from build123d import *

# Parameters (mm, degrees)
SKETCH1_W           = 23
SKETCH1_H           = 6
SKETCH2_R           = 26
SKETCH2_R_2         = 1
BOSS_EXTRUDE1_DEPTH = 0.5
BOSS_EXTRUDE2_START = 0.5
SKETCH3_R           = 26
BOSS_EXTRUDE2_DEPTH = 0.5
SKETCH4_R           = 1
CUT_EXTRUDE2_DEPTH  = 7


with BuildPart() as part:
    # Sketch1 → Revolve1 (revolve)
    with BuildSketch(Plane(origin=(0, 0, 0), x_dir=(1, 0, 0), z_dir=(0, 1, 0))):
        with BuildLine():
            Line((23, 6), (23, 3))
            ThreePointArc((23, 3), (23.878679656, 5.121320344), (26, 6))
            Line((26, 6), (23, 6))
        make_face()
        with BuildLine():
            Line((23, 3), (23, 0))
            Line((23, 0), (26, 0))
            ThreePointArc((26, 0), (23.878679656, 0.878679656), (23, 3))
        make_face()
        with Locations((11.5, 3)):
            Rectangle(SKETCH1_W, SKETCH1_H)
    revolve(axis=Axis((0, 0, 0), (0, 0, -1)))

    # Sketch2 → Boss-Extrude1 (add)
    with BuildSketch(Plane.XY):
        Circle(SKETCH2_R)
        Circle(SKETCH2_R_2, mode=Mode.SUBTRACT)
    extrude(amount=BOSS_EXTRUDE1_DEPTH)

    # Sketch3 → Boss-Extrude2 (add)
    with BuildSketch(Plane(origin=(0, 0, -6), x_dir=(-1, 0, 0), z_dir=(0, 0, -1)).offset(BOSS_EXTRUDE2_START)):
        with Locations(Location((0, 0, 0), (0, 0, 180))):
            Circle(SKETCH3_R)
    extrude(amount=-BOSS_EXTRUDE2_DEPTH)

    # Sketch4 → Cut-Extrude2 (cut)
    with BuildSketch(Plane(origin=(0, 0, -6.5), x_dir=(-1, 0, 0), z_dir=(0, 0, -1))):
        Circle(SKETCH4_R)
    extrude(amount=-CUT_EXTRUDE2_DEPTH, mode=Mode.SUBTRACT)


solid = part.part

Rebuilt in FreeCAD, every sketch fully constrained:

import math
import FreeCAD as App
import Part
import Sketcher

V = App.Vector
Q = App.Units.Quantity

doc = App.newDocument("Part")
params = doc.addObject("Spreadsheet::Sheet", "Params")
for row, (alias, value) in enumerate([
    ("sketch1_radius", "3 mm"),
    ("sketch1_width", "26 mm"),
    ("revolution_angle", "360 deg"),
    ("sketch2_diameter", "52 mm"),
    ("sketch2_diameter2", "2 mm"),
    ("pad1_length", "0.5 mm"),
    ("sketch3_diameter", "52 mm"),
    ("pad2_length", "0.5 mm"),
    ("sketch4_diameter", "2 mm"),
    ("pocket1_length", "7 mm"),
], start=1):
    params.set(f"A{row}", alias)
    params.set(f"B{row}", "=" + value)
    params.setAlias(f"B{row}", alias)

body = doc.addObject("PartDesign::Body", "Body")

# Sketch on XZ plane
sketch1 = doc.addObject("Sketcher::SketchObject", "Sketch")
body.addObject(sketch1)
sketch1.AttachmentSupport = (doc.XZ_Plane, [""])
sketch1.MapMode = "FlatFace"
sketch1.addGeometry(Part.ArcOfCircle(Part.Circle(V(26, -3, 0), V(0, 0, 1), 3), math.radians(180), math.radians(270)), False)
sketch1.addGeometry(Part.LineSegment(V(26, -6, 0), V(0, -6, 0)), False)
sketch1.addGeometry(Part.LineSegment(V(0, -6, 0), V(0, 0, 0)), False)
sketch1.addGeometry(Part.LineSegment(V(0, 0, 0), V(26, 0, 0)), False)
sketch1.addGeometry(Part.ArcOfCircle(Part.Circle(V(26, -3, 0), V(0, 0, 1), 3), math.radians(90), math.radians(180)), False)
sketch1.addConstraint(Sketcher.Constraint("Tangent", 0, 2, 1, 1))
sketch1.addConstraint(Sketcher.Constraint("Coincident", 1, 2, 2, 1))
sketch1.addConstraint(Sketcher.Constraint("Coincident", 2, 2, 3, 1))
sketch1.addConstraint(Sketcher.Constraint("Tangent", 3, 2, 4, 1))
sketch1.addConstraint(Sketcher.Constraint("Tangent", 4, 2, 0, 1))
sketch1.addConstraint(Sketcher.Constraint("Horizontal", 1))
sketch1.addConstraint(Sketcher.Constraint("Vertical", 2))
sketch1.addConstraint(Sketcher.Constraint("Horizontal", 3))
sketch1.addConstraint(Sketcher.Constraint("Coincident", 2, 2, -1, 1))
sketch1.addConstraint(Sketcher.Constraint("Equal", 0, 4))
sketch1.addConstraint(Sketcher.Constraint("Horizontal", 0, 3, 4, 2))
sketch1.addConstraint(Sketcher.Constraint("Radius", 0, Q("3 mm")))
sketch1.addConstraint(Sketcher.Constraint("DistanceX", 1, 2, 1, 1, Q("26 mm")))
sketch1.setExpression("Constraints[11]", "Params.sketch1_radius")
sketch1.setExpression("Constraints[12]", "Params.sketch1_width")
revolution = doc.addObject("PartDesign::Revolution", "Revolution")
body.addObject(revolution)
revolution.Profile = sketch1
revolution.ReferenceAxis = (sketch1, ["V_Axis"])
revolution.setExpression("Angle", "Params.revolution_angle")

# Sketch on XY plane
sketch2 = doc.addObject("Sketcher::SketchObject", "Sketch001")
body.addObject(sketch2)
sketch2.AttachmentSupport = (doc.XY_Plane, [""])
sketch2.MapMode = "FlatFace"
sketch2.addGeometry(Part.Circle(V(0, 0, 0), V(0, 0, 1), 26), False)
sketch2.addGeometry(Part.Circle(V(0, 0, 0), V(0, 0, 1), 1), False)
sketch2.addConstraint(Sketcher.Constraint("Coincident", 0, 3, -1, 1))
sketch2.addConstraint(Sketcher.Constraint("Coincident", 1, 3, -1, 1))
sketch2.addConstraint(Sketcher.Constraint("Diameter", 0, Q("52 mm")))
sketch2.addConstraint(Sketcher.Constraint("Diameter", 1, Q("2 mm")))
sketch2.setExpression("Constraints[2]", "Params.sketch2_diameter")
sketch2.setExpression("Constraints[3]", "Params.sketch2_diameter2")
pad1 = doc.addObject("PartDesign::Pad", "Pad")
body.addObject(pad1)
pad1.Profile = sketch2
pad1.setExpression("Length", "Params.pad1_length")

# Sketch on XY plane
sketch3 = doc.addObject("Sketcher::SketchObject", "Sketch002")
body.addObject(sketch3)
sketch3.AttachmentSupport = (doc.XY_Plane, [""])
sketch3.MapMode = "FlatFace"
sketch3.AttachmentOffset = App.Placement(V(0, 0, -6.5), App.Rotation())
sketch3.addGeometry(Part.Circle(V(0, 0, 0), V(0, 0, 1), 26), False)
sketch3.addConstraint(Sketcher.Constraint("Coincident", 0, 3, -1, 1))
sketch3.addConstraint(Sketcher.Constraint("Diameter", 0, Q("52 mm")))
sketch3.setExpression("Constraints[1]", "Params.sketch3_diameter")
pad2 = doc.addObject("PartDesign::Pad", "Pad001")
body.addObject(pad2)
pad2.Profile = sketch3
pad2.setExpression("Length", "Params.pad2_length")

# Sketch on XY plane
sketch4 = doc.addObject("Sketcher::SketchObject", "Sketch003")
body.addObject(sketch4)
sketch4.AttachmentSupport = (doc.XY_Plane, [""])
sketch4.MapMode = "FlatFace"
sketch4.AttachmentOffset = App.Placement(V(0, 0, -6.5), App.Rotation())
sketch4.addGeometry(Part.Circle(V(0, 0, 0), V(0, 0, 1), 1), False)
sketch4.addConstraint(Sketcher.Constraint("Coincident", 0, 3, -1, 1))
sketch4.addConstraint(Sketcher.Constraint("Diameter", 0, Q("2 mm")))
sketch4.setExpression("Constraints[1]", "Params.sketch4_diameter")
pocket1 = doc.addObject("PartDesign::Pocket", "Pocket")
body.addObject(pocket1)
pocket1.Profile = sketch4
pocket1.setExpression("Length", "Params.pocket1_length")
pocket1.Reversed = True

doc.recompute()
